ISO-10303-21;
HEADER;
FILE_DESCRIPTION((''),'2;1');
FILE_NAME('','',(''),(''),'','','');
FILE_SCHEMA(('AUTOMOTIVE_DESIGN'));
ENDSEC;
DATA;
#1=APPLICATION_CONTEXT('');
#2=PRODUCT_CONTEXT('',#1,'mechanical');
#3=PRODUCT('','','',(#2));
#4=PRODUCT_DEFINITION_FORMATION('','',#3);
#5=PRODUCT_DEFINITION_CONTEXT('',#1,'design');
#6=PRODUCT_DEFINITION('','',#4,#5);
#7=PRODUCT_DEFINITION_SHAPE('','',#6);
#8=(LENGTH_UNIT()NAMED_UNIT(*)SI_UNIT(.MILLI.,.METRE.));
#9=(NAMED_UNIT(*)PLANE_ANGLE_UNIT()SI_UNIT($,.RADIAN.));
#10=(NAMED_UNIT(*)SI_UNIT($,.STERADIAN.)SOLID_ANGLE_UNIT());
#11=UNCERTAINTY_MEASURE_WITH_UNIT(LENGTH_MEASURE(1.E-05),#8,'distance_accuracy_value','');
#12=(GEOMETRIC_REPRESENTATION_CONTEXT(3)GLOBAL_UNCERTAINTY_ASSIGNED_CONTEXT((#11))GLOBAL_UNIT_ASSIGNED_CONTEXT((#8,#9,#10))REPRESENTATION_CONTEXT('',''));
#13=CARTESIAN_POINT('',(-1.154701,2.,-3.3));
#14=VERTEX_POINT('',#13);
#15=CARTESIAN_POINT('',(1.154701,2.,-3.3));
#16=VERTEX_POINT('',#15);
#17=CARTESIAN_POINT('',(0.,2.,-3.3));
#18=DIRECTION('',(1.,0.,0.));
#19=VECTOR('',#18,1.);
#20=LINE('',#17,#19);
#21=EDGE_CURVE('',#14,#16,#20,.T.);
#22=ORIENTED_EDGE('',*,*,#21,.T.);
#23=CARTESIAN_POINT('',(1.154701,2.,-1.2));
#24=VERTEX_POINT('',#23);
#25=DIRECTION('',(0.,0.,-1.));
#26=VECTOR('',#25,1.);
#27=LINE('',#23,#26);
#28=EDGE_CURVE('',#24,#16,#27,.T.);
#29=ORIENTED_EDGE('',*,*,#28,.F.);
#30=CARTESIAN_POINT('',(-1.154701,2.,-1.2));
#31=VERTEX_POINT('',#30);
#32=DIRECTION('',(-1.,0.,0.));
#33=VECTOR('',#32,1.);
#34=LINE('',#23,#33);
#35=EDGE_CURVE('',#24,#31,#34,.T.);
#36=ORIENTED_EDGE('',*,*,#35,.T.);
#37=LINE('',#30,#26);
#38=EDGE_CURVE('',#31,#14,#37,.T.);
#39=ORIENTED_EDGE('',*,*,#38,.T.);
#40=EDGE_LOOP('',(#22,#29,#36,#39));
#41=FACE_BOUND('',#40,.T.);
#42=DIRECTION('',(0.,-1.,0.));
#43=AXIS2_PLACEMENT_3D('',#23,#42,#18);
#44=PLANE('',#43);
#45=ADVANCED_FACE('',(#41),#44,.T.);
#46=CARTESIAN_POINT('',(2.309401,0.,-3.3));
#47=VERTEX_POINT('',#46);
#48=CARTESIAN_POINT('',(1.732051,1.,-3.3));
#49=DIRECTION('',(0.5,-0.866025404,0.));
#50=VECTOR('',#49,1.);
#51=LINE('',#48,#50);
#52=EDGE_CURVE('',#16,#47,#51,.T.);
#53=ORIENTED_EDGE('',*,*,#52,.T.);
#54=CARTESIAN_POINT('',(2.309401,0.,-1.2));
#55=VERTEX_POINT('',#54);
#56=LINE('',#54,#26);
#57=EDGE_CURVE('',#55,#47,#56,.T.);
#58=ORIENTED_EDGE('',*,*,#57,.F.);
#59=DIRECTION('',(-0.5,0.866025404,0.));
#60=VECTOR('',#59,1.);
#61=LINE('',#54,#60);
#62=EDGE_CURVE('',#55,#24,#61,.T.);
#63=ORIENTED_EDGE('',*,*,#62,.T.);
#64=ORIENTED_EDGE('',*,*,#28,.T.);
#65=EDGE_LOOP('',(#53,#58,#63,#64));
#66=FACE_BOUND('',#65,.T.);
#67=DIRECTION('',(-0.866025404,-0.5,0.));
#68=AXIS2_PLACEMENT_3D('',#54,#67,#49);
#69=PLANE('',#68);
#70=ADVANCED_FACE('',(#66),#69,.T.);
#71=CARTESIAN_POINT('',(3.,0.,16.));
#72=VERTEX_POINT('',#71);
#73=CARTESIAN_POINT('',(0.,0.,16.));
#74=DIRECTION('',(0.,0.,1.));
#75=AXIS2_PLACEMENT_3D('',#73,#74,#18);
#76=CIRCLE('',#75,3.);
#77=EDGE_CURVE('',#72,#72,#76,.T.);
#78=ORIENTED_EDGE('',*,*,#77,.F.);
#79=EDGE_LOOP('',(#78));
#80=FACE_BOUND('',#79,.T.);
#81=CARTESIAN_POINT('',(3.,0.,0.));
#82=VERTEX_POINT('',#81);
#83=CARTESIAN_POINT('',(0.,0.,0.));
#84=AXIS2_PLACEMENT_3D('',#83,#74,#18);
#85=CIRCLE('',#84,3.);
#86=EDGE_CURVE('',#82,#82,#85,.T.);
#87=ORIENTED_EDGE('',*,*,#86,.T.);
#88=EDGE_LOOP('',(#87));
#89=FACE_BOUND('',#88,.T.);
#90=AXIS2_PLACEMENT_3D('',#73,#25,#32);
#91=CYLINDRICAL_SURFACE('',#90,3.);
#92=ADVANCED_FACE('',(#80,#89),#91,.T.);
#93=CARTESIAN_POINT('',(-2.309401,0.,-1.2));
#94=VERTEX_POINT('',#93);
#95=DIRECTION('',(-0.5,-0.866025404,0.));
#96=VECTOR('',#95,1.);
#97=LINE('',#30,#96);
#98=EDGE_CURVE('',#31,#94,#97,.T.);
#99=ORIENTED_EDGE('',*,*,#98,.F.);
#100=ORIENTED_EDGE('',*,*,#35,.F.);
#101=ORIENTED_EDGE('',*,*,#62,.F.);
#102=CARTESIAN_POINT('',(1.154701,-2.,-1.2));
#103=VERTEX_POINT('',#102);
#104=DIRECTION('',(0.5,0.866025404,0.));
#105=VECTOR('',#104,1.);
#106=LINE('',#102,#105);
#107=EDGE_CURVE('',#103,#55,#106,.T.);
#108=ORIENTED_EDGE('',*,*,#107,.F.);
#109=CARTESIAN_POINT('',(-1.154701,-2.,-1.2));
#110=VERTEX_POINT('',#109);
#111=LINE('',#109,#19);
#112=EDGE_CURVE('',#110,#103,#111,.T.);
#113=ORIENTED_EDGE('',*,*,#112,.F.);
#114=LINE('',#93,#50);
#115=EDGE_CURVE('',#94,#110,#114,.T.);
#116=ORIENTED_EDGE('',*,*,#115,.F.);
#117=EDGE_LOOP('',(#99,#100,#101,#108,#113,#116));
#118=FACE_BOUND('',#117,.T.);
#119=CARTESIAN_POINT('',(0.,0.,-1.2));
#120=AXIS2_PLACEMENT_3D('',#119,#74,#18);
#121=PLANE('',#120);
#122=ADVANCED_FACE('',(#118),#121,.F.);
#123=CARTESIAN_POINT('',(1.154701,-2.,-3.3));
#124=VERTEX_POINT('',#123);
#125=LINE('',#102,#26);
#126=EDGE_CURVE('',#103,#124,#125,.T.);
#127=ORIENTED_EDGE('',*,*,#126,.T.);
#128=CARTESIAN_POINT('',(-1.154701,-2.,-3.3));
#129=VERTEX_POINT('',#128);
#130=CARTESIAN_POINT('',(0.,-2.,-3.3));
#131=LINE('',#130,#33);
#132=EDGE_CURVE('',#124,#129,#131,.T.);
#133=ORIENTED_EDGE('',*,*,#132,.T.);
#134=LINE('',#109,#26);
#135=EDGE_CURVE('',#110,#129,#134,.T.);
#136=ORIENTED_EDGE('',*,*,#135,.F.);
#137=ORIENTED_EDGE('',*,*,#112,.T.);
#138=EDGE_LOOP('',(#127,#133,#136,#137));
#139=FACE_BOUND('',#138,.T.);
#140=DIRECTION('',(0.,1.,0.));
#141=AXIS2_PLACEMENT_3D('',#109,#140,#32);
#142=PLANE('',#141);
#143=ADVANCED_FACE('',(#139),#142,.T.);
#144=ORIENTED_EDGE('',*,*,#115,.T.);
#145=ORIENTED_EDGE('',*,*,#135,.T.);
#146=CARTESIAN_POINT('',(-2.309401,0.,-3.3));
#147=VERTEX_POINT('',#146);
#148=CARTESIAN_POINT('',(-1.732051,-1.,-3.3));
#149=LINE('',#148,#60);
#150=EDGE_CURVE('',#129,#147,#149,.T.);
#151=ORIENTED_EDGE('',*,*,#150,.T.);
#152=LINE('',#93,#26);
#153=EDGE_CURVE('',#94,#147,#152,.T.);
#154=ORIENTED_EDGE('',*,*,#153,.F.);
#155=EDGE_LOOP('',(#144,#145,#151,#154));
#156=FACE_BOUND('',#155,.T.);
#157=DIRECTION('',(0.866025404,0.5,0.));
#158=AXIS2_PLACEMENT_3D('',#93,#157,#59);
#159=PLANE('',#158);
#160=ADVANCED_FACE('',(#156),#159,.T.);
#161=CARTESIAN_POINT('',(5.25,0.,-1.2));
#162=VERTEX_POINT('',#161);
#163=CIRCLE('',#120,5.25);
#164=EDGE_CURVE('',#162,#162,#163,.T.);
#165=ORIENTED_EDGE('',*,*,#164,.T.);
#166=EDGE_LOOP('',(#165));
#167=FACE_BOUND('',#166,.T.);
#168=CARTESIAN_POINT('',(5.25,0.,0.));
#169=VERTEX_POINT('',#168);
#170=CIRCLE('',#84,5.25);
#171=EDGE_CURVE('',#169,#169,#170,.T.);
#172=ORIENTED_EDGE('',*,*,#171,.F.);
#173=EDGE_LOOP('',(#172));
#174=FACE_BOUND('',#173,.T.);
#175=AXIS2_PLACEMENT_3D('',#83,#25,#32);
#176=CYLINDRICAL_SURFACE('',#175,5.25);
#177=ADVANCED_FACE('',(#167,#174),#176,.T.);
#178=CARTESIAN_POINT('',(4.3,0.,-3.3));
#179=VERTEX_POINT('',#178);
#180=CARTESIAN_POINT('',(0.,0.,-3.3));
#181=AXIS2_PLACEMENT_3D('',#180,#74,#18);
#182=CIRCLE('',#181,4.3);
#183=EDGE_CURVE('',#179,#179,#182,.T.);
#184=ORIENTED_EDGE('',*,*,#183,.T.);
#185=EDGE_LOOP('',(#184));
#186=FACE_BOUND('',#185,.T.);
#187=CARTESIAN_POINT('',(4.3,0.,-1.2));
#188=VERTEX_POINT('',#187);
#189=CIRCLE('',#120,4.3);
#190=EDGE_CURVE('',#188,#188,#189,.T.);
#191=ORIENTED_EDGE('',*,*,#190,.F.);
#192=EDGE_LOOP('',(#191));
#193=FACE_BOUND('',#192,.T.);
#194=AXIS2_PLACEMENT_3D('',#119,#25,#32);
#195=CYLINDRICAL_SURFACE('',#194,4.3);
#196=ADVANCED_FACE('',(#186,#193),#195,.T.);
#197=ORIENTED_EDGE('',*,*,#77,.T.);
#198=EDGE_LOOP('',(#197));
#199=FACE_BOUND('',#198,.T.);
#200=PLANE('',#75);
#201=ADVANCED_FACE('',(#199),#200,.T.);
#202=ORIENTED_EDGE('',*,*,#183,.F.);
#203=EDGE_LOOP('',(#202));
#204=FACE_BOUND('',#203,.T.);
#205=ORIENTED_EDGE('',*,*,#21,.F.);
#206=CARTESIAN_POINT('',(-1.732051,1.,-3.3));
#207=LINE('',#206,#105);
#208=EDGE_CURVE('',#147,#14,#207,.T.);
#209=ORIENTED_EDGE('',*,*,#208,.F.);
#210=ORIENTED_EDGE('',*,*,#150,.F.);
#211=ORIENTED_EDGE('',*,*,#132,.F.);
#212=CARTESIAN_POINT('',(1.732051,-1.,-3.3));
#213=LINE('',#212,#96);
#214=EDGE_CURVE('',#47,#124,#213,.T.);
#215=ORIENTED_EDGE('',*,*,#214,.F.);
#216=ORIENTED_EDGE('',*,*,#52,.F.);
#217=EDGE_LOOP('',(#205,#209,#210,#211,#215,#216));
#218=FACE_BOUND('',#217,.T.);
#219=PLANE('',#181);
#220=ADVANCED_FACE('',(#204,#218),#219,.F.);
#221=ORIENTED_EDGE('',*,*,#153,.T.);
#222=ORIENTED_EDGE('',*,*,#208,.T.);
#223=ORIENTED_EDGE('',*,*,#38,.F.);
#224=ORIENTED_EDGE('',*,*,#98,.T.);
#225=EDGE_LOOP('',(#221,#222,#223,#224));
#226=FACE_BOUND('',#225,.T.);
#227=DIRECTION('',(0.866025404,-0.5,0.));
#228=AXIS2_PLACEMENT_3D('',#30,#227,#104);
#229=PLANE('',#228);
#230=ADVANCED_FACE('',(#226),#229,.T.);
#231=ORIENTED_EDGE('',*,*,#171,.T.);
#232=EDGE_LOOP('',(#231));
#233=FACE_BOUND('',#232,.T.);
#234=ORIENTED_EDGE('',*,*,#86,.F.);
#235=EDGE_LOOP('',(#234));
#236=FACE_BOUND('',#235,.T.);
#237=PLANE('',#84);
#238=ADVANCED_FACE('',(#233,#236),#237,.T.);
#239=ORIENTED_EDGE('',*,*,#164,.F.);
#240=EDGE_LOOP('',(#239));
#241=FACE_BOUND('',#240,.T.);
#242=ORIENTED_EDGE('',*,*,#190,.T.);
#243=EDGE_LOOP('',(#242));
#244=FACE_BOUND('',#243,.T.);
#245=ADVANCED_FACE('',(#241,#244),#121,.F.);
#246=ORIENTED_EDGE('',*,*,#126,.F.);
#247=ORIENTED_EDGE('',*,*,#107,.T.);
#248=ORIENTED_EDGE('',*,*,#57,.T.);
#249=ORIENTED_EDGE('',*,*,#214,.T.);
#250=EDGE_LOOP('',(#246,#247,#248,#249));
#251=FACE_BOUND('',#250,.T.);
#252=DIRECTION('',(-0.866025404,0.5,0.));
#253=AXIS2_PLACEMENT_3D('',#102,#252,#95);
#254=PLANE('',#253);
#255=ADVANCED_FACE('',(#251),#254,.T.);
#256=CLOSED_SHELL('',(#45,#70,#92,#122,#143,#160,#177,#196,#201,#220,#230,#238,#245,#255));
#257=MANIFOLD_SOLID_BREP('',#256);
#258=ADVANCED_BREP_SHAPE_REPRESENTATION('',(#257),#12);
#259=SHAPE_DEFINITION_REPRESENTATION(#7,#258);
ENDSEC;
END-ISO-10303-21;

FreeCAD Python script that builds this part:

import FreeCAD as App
import Part
import Sketcher
from FreeCAD import Vector
Q = App.Units.Quantity

doc = App.newDocument("Part")
body = doc.addObject("PartDesign::Body", "Body")

# Sketch on XY plane
sketch1 = body.newObject("Sketcher::SketchObject", "Sketch")
sketch1.AttachmentSupport = (doc.getObject("XY_Plane"), [""])
sketch1.MapMode = "FlatFace"
sketch1.addGeometry(Part.Circle(Vector(0, 0, 0), Vector(0, 0, 1), 3), False)
sketch1.addConstraint([
    Sketcher.Constraint("Coincident", 0, 3, -1, 1),
    Sketcher.Constraint("Diameter", 0, 6.0),
])
pad1 = body.newObject("PartDesign::Pad", "Pad")
pad1.Profile = sketch1
pad1.Length = 16

# Sketch on XY plane
sketch2 = body.newObject("Sketcher::SketchObject", "Sketch001")
sketch2.AttachmentSupport = (doc.getObject("XY_Plane"), [""])
sketch2.MapMode = "FlatFace"
sketch2.AttachmentOffset = App.Placement(Vector(0, 0, -1.2), App.Rotation())
sketch2.addGeometry(Part.Circle(Vector(0, 0, 0), Vector(0, 0, 1), 5.25), False)
sketch2.addConstraint([
    Sketcher.Constraint("Coincident", 0, 3, -1, 1),
    Sketcher.Constraint("Diameter", 0, 10.5),
])
pad2 = body.newObject("PartDesign::Pad", "Pad001")
pad2.Profile = sketch2
pad2.Length = 1.2

# Sketch on XY plane
sketch3 = body.newObject("Sketcher::SketchObject", "Sketch002")
sketch3.AttachmentSupport = (doc.getObject("XY_Plane"), [""])
sketch3.MapMode = "FlatFace"
sketch3.AttachmentOffset = App.Placement(Vector(0, 0, -3.3), App.Rotation())
sketch3.addGeometry(Part.Circle(Vector(0, 0, 0), Vector(0, 0, 1), 4.3), False)
sketch3.addConstraint([
    Sketcher.Constraint("Coincident", 0, 3, -1, 1),
    Sketcher.Constraint("Diameter", 0, 8.6),
])
pad3 = body.newObject("PartDesign::Pad", "Pad002")
pad3.Profile = sketch3
pad3.Length = 2.1

# Sketch on XY plane
sketch4 = body.newObject("Sketcher::SketchObject", "Sketch003")
sketch4.AttachmentSupport = (doc.getObject("XY_Plane"), [""])
sketch4.MapMode = "FlatFace"
sketch4.AttachmentOffset = App.Placement(Vector(0, 0, -3.4), App.Rotation())
sketch4.addGeometry([
    Part.LineSegment(Vector(2.309401, 0, 0), Vector(1.154701, 2, 0)),  # 0
    Part.LineSegment(Vector(1.154701, 2, 0), Vector(-1.154701, 2, 0)),  # 1
    Part.LineSegment(Vector(-1.154701, 2, 0), Vector(-2.309401, 0, 0)),  # 2
    Part.LineSegment(Vector(-2.309401, 0, 0), Vector(-1.154701, -2, 0)),  # 3
    Part.LineSegment(Vector(-1.154701, -2, 0), Vector(1.154701, -2, 0)),  # 4
    Part.LineSegment(Vector(1.154701, -2, 0), Vector(2.309401, 0, 0)),  # 5
], False)
sketch4.addConstraint([
    Sketcher.Constraint("Coincident", 0, 2, 1, 1),
    Sketcher.Constraint("Coincident", 1, 2, 2, 1),
    Sketcher.Constraint("Coincident", 2, 2, 3, 1),
    Sketcher.Constraint("Coincident", 3, 2, 4, 1),
    Sketcher.Constraint("Coincident", 4, 2, 5, 1),
    Sketcher.Constraint("Coincident", 5, 2, 0, 1),
    Sketcher.Constraint("Horizontal", 1),
    Sketcher.Constraint("Horizontal", 4),
    Sketcher.Constraint("Symmetric", 0, 2, 3, 2, -1, 1),
    Sketcher.Constraint("Symmetric", 2, 2, 5, 2, -1, 1),
    Sketcher.Constraint("PointOnObject", 2, 2, -1),
    Sketcher.Constraint("Parallel", 2, 5),
    Sketcher.Constraint("Vertical", 1, 2, 3, 2),
    Sketcher.Constraint("Angle", 0, Q("120 deg")),
    Sketcher.Constraint("DistanceY", -1, 1, 0, 2, 2.0),
    Sketcher.Constraint("DistanceX", 1, 2, 1, 1, 2.309401),
])
pocket1 = body.newObject("PartDesign::Pocket", "Pocket")
pocket1.Profile = sketch4
pocket1.Length = 2.2
pocket1.Reversed = True

doc.recompute()
